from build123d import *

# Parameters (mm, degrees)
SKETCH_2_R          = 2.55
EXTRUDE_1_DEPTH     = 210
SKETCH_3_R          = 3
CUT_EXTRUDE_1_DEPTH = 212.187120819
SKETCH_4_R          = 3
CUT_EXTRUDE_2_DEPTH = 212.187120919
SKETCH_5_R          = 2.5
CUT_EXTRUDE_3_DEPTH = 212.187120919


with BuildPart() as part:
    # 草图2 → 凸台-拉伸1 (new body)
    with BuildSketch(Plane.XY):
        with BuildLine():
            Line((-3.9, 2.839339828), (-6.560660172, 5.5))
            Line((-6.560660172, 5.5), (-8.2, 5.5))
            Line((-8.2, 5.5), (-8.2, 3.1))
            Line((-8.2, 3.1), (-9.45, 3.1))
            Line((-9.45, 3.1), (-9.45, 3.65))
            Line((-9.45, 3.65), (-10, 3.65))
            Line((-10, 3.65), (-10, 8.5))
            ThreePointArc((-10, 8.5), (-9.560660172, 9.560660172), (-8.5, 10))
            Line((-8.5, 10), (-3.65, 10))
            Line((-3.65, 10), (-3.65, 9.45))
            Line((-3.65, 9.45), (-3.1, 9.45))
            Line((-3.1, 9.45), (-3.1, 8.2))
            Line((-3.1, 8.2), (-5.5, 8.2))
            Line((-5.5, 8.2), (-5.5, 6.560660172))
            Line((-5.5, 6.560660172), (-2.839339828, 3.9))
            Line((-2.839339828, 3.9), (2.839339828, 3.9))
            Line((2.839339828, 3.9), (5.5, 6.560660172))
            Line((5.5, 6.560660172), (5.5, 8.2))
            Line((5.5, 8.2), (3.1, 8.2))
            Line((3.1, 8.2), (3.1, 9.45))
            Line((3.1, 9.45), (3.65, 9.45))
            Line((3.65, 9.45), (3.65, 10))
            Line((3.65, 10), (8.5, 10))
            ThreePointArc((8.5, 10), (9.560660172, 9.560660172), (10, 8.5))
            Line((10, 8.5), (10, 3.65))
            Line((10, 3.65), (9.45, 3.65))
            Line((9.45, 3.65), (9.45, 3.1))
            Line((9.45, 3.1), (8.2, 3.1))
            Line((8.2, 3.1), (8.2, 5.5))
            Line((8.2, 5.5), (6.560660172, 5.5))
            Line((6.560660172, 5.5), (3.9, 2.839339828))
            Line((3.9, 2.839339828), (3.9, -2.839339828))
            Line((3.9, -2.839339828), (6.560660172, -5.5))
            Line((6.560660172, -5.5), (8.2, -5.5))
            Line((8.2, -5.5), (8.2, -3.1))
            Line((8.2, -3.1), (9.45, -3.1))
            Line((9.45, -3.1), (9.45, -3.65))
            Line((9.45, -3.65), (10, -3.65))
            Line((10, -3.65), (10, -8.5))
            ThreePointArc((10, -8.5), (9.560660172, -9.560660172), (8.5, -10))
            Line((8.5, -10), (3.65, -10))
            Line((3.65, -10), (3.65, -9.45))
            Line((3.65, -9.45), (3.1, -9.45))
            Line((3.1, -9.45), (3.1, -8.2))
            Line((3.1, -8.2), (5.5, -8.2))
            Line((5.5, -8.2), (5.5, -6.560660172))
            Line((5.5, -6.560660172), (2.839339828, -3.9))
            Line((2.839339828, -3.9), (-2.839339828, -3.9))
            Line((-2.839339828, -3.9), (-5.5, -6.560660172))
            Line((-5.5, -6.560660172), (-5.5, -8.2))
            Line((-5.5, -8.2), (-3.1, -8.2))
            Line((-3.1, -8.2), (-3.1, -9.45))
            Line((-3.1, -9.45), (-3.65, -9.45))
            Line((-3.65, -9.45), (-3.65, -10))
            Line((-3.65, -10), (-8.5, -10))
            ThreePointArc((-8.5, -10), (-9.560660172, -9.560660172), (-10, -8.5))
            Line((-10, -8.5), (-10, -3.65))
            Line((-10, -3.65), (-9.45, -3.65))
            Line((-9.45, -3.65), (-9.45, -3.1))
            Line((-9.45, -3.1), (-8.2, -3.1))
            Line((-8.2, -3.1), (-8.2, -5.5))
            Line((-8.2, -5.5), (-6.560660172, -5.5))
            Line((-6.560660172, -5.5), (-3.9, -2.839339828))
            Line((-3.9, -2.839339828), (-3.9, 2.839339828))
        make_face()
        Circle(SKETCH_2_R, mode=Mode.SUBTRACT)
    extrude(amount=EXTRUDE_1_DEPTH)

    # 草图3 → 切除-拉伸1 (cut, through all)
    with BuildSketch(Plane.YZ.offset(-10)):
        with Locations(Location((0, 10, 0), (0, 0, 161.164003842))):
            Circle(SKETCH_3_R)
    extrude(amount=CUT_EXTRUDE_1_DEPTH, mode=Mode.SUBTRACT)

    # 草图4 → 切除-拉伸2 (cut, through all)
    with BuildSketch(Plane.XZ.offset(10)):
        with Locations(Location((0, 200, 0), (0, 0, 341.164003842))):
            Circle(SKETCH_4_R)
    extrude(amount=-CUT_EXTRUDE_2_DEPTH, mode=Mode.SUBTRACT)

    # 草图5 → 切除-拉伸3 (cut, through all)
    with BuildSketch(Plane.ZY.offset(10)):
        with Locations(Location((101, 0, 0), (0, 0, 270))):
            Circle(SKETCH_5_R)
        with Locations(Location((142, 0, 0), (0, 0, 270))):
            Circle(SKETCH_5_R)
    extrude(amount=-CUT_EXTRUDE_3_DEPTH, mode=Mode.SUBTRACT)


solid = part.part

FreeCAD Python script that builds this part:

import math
import FreeCAD as App
import Part
import Sketcher

doc = App.newDocument("Part")
params = doc.addObject("Spreadsheet::Sheet", "Params")
for row, (alias, value) in enumerate([
    ("sketch1_diameter", "5.1 mm"),
    ("sketch1_radius", "1.5 mm"),
    ("sketch1_width", "2.4 mm"),
    ("sketch1_width2", "1.25 mm"),
    ("sketch1_width3", "0.55 mm"),
    ("pad1_length", "210 mm"),
    ("sketch2_diameter", "6 mm"),
    ("sketch3_diameter", "6 mm"),
    ("sketch4_diameter", "5 mm"),
], start=1):
    params.set(f"A{row}", alias)
    params.set(f"B{row}", "=" + value)
    params.setAlias(f"B{row}", alias)

body = doc.addObject("PartDesign::Body", "Body")

# Sketch on XY plane
sketch1 = body.newObject("Sketcher::SketchObject", "Sketch")
sketch1.AttachmentSupport = (doc.getObject("XY_Plane"), [""])
sketch1.MapMode = "FlatFace"
sketch1.addGeometry(Part.LineSegment(App.Vector(-6.56066, 5.5, 0), App.Vector(-3.9, 2.83934, 0)), False)
sketch1.addGeometry(Part.LineSegment(App.Vector(-3.9, 2.83934, 0), App.Vector(-3.9, -2.83934, 0)), False)
sketch1.addGeometry(Part.LineSegment(App.Vector(-3.9, -2.83934, 0), App.Vector(-6.56066, -5.5, 0)), False)
sketch1.addGeometry(Part.LineSegment(App.Vector(-6.56066, -5.5, 0), App.Vector(-8.2, -5.5, 0)), False)
sketch1.addGeometry(Part.LineSegment(App.Vector(-8.2, -5.5, 0), App.Vector(-8.2, -3.1, 0)), False)
sketch1.addGeometry(Part.LineSegment(App.Vector(-8.2, -3.1, 0), App.Vector(-9.45, -3.1, 0)), False)
sketch1.addGeometry(Part.LineSegment(App.Vector(-9.45, -3.1, 0), App.Vector(-9.45, -3.65, 0)), False)
sketch1.addGeometry(Part.LineSegment(App.Vector(-9.45, -3.65, 0), App.Vector(-10, -3.65, 0)), False)
sketch1.addGeometry(Part.LineSegment(App.Vector(-10, -3.65, 0), App.Vector(-10, -8.5, 0)), False)
sketch1.addGeometry(Part.ArcOfCircle(Part.Circle(App.Vector(-8.5, -8.5, 0), App.Vector(0, 0, 1), 1.5), math.radians(180), math.radians(270)), False)
sketch1.addGeometry(Part.LineSegment(App.Vector(-8.5, -10, 0), App.Vector(-3.65, -10, 0)), False)
sketch1.addGeometry(Part.LineSegment(App.Vector(-3.65, -10, 0), App.Vector(-3.65, -9.45, 0)), False)
sketch1.addGeometry(Part.LineSegment(App.Vector(-3.65, -9.45, 0), App.Vector(-3.1, -9.45, 0)), False)
sketch1.addGeometry(Part.LineSegment(App.Vector(-3.1, -9.45, 0), App.Vector(-3.1, -8.2, 0)), False)
sketch1.addGeometry(Part.LineSegment(App.Vector(-3.1, -8.2, 0), App.Vector(-5.5, -8.2, 0)), False)
sketch1.addGeometry(Part.LineSegment(App.Vector(-5.5, -8.2, 0), App.Vector(-5.5, -6.56066, 0)), False)
sketch1.addGeometry(Part.LineSegment(App.Vector(-5.5, -6.56066, 0), App.Vector(-2.83934, -3.9, 0)), False)
sketch1.addGeometry(Part.LineSegment(App.Vector(-2.83934, -3.9, 0), App.Vector(2.83934, -3.9, 0)), False)
sketch1.addGeometry(Part.LineSegment(App.Vector(2.83934, -3.9, 0), App.Vector(5.5, -6.56066, 0)), False)
sketch1.addGeometry(Part.LineSegment(App.Vector(5.5, -6.56066, 0), App.Vector(5.5, -8.2, 0)), False)
sketch1.addGeometry(Part.LineSegment(App.Vector(5.5, -8.2, 0), App.Vector(3.1, -8.2, 0)), False)
sketch1.addGeometry(Part.LineSegment(App.Vector(3.1, -8.2, 0), App.Vector(3.1, -9.45, 0)), False)
sketch1.addGeometry(Part.LineSegment(App.Vector(3.1, -9.45, 0), App.Vector(3.65, -9.45, 0)), False)
sketch1.addGeometry(Part.LineSegment(App.Vector(3.65, -9.45, 0), App.Vector(3.65, -10, 0)), False)
sketch1.addGeometry(Part.LineSegment(App.Vector(3.65, -10, 0), App.Vector(8.5, -10, 0)), False)
sketch1.addGeometry(Part.ArcOfCircle(Part.Circle(App.Vector(8.5, -8.5, 0), App.Vector(0, 0, 1), 1.5), math.radians(-90), math.radians(0)), False)
sketch1.addGeometry(Part.LineSegment(App.Vector(10, -8.5, 0), App.Vector(10, -3.65, 0)), False)
sketch1.addGeometry(Part.LineSegment(App.Vector(10, -3.65, 0), App.Vector(9.45, -3.65, 0)), False)
sketch1.addGeometry(Part.LineSegment(App.Vector(9.45, -3.65, 0), App.Vector(9.45, -3.1, 0)), False)
sketch1.addGeometry(Part.LineSegment(App.Vector(9.45, -3.1, 0), App.Vector(8.2, -3.1, 0)), False)
sketch1.addGeometry(Part.LineSegment(App.Vector(8.2, -3.1, 0), App.Vector(8.2, -5.5, 0)), False)
sketch1.addGeometry(Part.LineSegment(App.Vector(8.2, -5.5, 0), App.Vector(6.56066, -5.5, 0)), False)
sketch1.addGeometry(Part.LineSegment(App.Vector(6.56066, -5.5, 0), App.Vector(3.9, -2.83934, 0)), False)
sketch1.addGeometry(Part.LineSegment(App.Vector(3.9, -2.83934, 0), App.Vector(3.9, 2.83934, 0)), False)
sketch1.addGeometry(Part.LineSegment(App.Vector(3.9, 2.83934, 0), App.Vector(6.56066, 5.5, 0)), False)
sketch1.addGeometry(Part.LineSegment(App.Vector(6.56066, 5.5, 0), App.Vector(8.2, 5.5, 0)), False)
sketch1.addGeometry(Part.LineSegment(App.Vector(8.2, 5.5, 0), App.Vector(8.2, 3.1, 0)), False)
sketch1.addGeometry(Part.LineSegment(App.Vector(8.2, 3.1, 0), App.Vector(9.45, 3.1, 0)), False)
sketch1.addGeometry(Part.LineSegment(App.Vector(9.45, 3.1, 0), App.Vector(9.45, 3.65, 0)), False)
sketch1.addGeometry(Part.LineSegment(App.Vector(9.45, 3.65, 0), App.Vector(10, 3.65, 0)), False)
sketch1.addGeometry(Part.LineSegment(App.Vector(10, 3.65, 0), App.Vector(10, 8.5, 0)), False)
sketch1.addGeometry(Part.ArcOfCircle(Part.Circle(App.Vector(8.5, 8.5, 0), App.Vector(0, 0, 1), 1.5), math.radians(0), math.radians(90)), False)
sketch1.addGeometry(Part.LineSegment(App.Vector(8.5, 10, 0), App.Vector(3.65, 10, 0)), False)
sketch1.addGeometry(Part.LineSegment(App.Vector(3.65, 10, 0), App.Vector(3.65, 9.45, 0)), False)
sketch1.addGeometry(Part.LineSegment(App.Vector(3.65, 9.45, 0), App.Vector(3.1, 9.45, 0)), False)
sketch1.addGeometry(Part.LineSegment(App.Vector(3.1, 9.45, 0), App.Vector(3.1, 8.2, 0)), False)
sketch1.addGeometry(Part.LineSegment(App.Vector(3.1, 8.2, 0), App.Vector(5.5, 8.2, 0)), False)
sketch1.addGeometry(Part.LineSegment(App.Vector(5.5, 8.2, 0), App.Vector(5.5, 6.56066, 0)), False)
sketch1.addGeometry(Part.LineSegment(App.Vector(5.5, 6.56066, 0), App.Vector(2.83934, 3.9, 0)), False)
sketch1.addGeometry(Part.LineSegment(App.Vector(2.83934, 3.9, 0), App.Vector(-2.83934, 3.9, 0)), False)
sketch1.addGeometry(Part.LineSegment(App.Vector(-2.83934, 3.9, 0), App.Vector(-5.5, 6.56066, 0)), False)
sketch1.addGeometry(Part.LineSegment(App.Vector(-5.5, 6.56066, 0), App.Vector(-5.5, 8.2, 0)), False)
sketch1.addGeometry(Part.LineSegment(App.Vector(-5.5, 8.2, 0), App.Vector(-3.1, 8.2, 0)), False)
sketch1.addGeometry(Part.LineSegment(App.Vector(-3.1, 8.2, 0), App.Vector(-3.1, 9.45, 0)), False)
sketch1.addGeometry(Part.LineSegment(App.Vector(-3.1, 9.45, 0), App.Vector(-3.65, 9.45, 0)), False)
sketch1.addGeometry(Part.LineSegment(App.Vector(-3.65, 9.45, 0), App.Vector(-3.65, 10, 0)), False)
sketch1.addGeometry(Part.LineSegment(App.Vector(-3.65, 10, 0), App.Vector(-8.5, 10, 0)), False)
sketch1.addGeometry(Part.ArcOfCircle(Part.Circle(App.Vector(-8.5, 8.5, 0), App.Vector(0, 0, 1), 1.5), math.radians(90), math.radians(180)), False)
sketch1.addGeometry(Part.LineSegment(App.Vector(-10, 8.5, 0), App.Vector(-10, 3.65, 0)), False)
sketch1.addGeometry(Part.LineSegment(App.Vector(-10, 3.65, 0), App.Vector(-9.45, 3.65, 0)), False)
sketch1.addGeometry(Part.LineSegment(App.Vector(-9.45, 3.65, 0), App.Vector(-9.45, 3.1, 0)), False)
sketch1.addGeometry(Part.LineSegment(App.Vector(-9.45, 3.1, 0), App.Vector(-8.2, 3.1, 0)), False)
sketch1.addGeometry(Part.LineSegment(App.Vector(-8.2, 3.1, 0), App.Vector(-8.2, 5.5, 0)), False)
sketch1.addGeometry(Part.LineSegment(App.Vector(-8.2, 5.5, 0), App.Vector(-6.56066, 5.5, 0)), False)
sketch1.addGeometry(Part.Circle(App.Vector(0, 0, 0), App.Vector(0, 0, 1), 2.55), False)
sketch1.addConstraint(Sketcher.Constraint("Coincident", 0, 2, 1, 1))
sketch1.addConstraint(Sketcher.Constraint("Coincident", 1, 2, 2, 1))
sketch1.addConstraint(Sketcher.Constraint("Coincident", 2, 2, 3, 1))
sketch1.addConstraint(Sketcher.Constraint("Coincident", 3, 2, 4, 1))
sketch1.addConstraint(Sketcher.Constraint("Coincident", 4, 2, 5, 1))
sketch1.addConstraint(Sketcher.Constraint("Coincident", 5, 2, 6, 1))
sketch1.addConstraint(Sketcher.Constraint("Coincident", 6, 2, 7, 1))
sketch1.addConstraint(Sketcher.Constraint("Coincident", 7, 2, 8, 1))
sketch1.addConstraint(Sketcher.Constraint("Tangent", 8, 2, 9, 1))
sketch1.addConstraint(Sketcher.Constraint("Tangent", 9, 2, 10, 1))
sketch1.addConstraint(Sketcher.Constraint("Coincident", 10, 2, 11, 1))
sketch1.addConstraint(Sketcher.Constraint("Coincident", 11, 2, 12, 1))
sketch1.addConstraint(Sketcher.Constraint("Coincident", 12, 2, 13, 1))
sketch1.addConstraint(Sketcher.Constraint("Coincident", 13, 2, 14, 1))
sketch1.addConstraint(Sketcher.Constraint("Coincident", 14, 2, 15, 1))
sketch1.addConstraint(Sketcher.Constraint("Coincident", 15, 2, 16, 1))
sketch1.addConstraint(Sketcher.Constraint("Coincident", 16, 2, 17, 1))
sketch1.addConstraint(Sketcher.Constraint("Coincident", 17, 2, 18, 1))
sketch1.addConstraint(Sketcher.Constraint("Coincident", 18, 2, 19, 1))
sketch1.addConstraint(Sketcher.Constraint("Coincident", 19, 2, 20, 1))
sketch1.addConstraint(Sketcher.Constraint("Coincident", 20, 2, 21, 1))
sketch1.addConstraint(Sketcher.Constraint("Coincident", 21, 2, 22, 1))
sketch1.addConstraint(Sketcher.Constraint("Coincident", 22, 2, 23, 1))
sketch1.addConstraint(Sketcher.Constraint("Coincident", 23, 2, 24, 1))
sketch1.addConstraint(Sketcher.Constraint("Tangent", 24, 2, 25, 1))
sketch1.addConstraint(Sketcher.Constraint("Tangent", 25, 2, 26, 1))
sketch1.addConstraint(Sketcher.Constraint("Coincident", 26, 2, 27, 1))
sketch1.addConstraint(Sketcher.Constraint("Coincident", 27, 2, 28, 1))
sketch1.addConstraint(Sketcher.Constraint("Coincident", 28, 2, 29, 1))
sketch1.addConstraint(Sketcher.Constraint("Coincident", 29, 2, 30, 1))
sketch1.addConstraint(Sketcher.Constraint("Coincident", 30, 2, 31, 1))
sketch1.addConstraint(Sketcher.Constraint("Coincident", 31, 2, 32, 1))
sketch1.addConstraint(Sketcher.Constraint("Coincident", 32, 2, 33, 1))
sketch1.addConstraint(Sketcher.Constraint("Coincident", 33, 2, 34, 1))
sketch1.addConstraint(Sketcher.Constraint("Coincident", 34, 2, 35, 1))
sketch1.addConstraint(Sketcher.Constraint("Coincident", 35, 2, 36, 1))
sketch1.addConstraint(Sketcher.Constraint("Coincident", 36, 2, 37, 1))
sketch1.addConstraint(Sketcher.Constraint("Coincident", 37, 2, 38, 1))
sketch1.addConstraint(Sketcher.Constraint("Coincident", 38, 2, 39, 1))
sketch1.addConstraint(Sketcher.Constraint("Coincident", 39, 2, 40, 1))
sketch1.addConstraint(Sketcher.Constraint("Tangent", 40, 2, 41, 1))
sketch1.addConstraint(Sketcher.Constraint("Tangent", 41, 2, 42, 1))
sketch1.addConstraint(Sketcher.Constraint("Coincident", 42, 2, 43, 1))
sketch1.addConstraint(Sketcher.Constraint("Coincident", 43, 2, 44, 1))
sketch1.addConstraint(Sketcher.Constraint("Coincident", 44, 2, 45, 1))
sketch1.addConstraint(Sketcher.Constraint("Coincident", 45, 2, 46, 1))
sketch1.addConstraint(Sketcher.Constraint("Coincident", 46, 2, 47, 1))
sketch1.addConstraint(Sketcher.Constraint("Coincident", 47, 2, 48, 1))
sketch1.addConstraint(Sketcher.Constraint("Coincident", 48, 2, 49, 1))
sketch1.addConstraint(Sketcher.Constraint("Coincident", 49, 2, 50, 1))
sketch1.addConstraint(Sketcher.Constraint("Coincident", 50, 2, 51, 1))
sketch1.addConstraint(Sketcher.Constraint("Coincident", 51, 2, 52, 1))
sketch1.addConstraint(Sketcher.Constraint("Coincident", 52, 2, 53, 1))
sketch1.addConstraint(Sketcher.Constraint("Coincident", 53, 2, 54, 1))
sketch1.addConstraint(Sketcher.Constraint("Coincident", 54, 2, 55, 1))
sketch1.addConstraint(Sketcher.Constraint("Coincident", 55, 2, 56, 1))
sketch1.addConstraint(Sketcher.Constraint("Tangent", 56, 2, 57, 1))
sketch1.addConstraint(Sketcher.Constraint("Tangent", 57, 2, 58, 1))
sketch1.addConstraint(Sketcher.Constraint("Coincident", 58, 2, 59, 1))
sketch1.addConstraint(Sketcher.Constraint("Coincident", 59, 2, 60, 1))
sketch1.addConstraint(Sketcher.Constraint("Coincident", 60, 2, 61, 1))
sketch1.addConstraint(Sketcher.Constraint("Coincident", 61, 2, 62, 1))
sketch1.addConstraint(Sketcher.Constraint("Coincident", 62, 2, 63, 1))
sketch1.addConstraint(Sketcher.Constraint("Coincident", 63, 2, 0, 1))
sketch1.addConstraint(Sketcher.Constraint("Vertical", 1))
sketch1.addConstraint(Sketcher.Constraint("Horizontal", 3))
sketch1.addConstraint(Sketcher.Constraint("Vertical", 4))
sketch1.addConstraint(Sketcher.Constraint("Horizontal", 5))
sketch1.addConstraint(Sketcher.Constraint("Vertical", 6))
sketch1.addConstraint(Sketcher.Constraint("Horizontal", 7))
sketch1.addConstraint(Sketcher.Constraint("Vertical", 8))
sketch1.addConstraint(Sketcher.Constraint("Horizontal", 10))
sketch1.addConstraint(Sketcher.Constraint("Vertical", 11))
sketch1.addConstraint(Sketcher.Constraint("Horizontal", 12))
sketch1.addConstraint(Sketcher.Constraint("Vertical", 13))
sketch1.addConstraint(Sketcher.Constraint("Horizontal", 14))
sketch1.addConstraint(Sketcher.Constraint("Vertical", 15))
sketch1.addConstraint(Sketcher.Constraint("Horizontal", 17))
sketch1.addConstraint(Sketcher.Constraint("Vertical", 19))
sketch1.addConstraint(Sketcher.Constraint("Horizontal", 20))
sketch1.addConstraint(Sketcher.Constraint("Vertical", 21))
sketch1.addConstraint(Sketcher.Constraint("Horizontal", 22))
sketch1.addConstraint(Sketcher.Constraint("Vertical", 23))
sketch1.addConstraint(Sketcher.Constraint("Horizontal", 24))
sketch1.addConstraint(Sketcher.Constraint("Vertical", 26))
sketch1.addConstraint(Sketcher.Constraint("Horizontal", 27))
sketch1.addConstraint(Sketcher.Constraint("Vertical", 28))
sketch1.addConstraint(Sketcher.Constraint("Horizontal", 29))
sketch1.addConstraint(Sketcher.Constraint("Vertical", 30))
sketch1.addConstraint(Sketcher.Constraint("Horizontal", 31))
sketch1.addConstraint(Sketcher.Constraint("Vertical", 33))
sketch1.addConstraint(Sketcher.Constraint("Horizontal", 35))
sketch1.addConstraint(Sketcher.Constraint("Vertical", 36))
sketch1.addConstraint(Sketcher.Constraint("Horizontal", 37))
sketch1.addConstraint(Sketcher.Constraint("Vertical", 38))
sketch1.addConstraint(Sketcher.Constraint("Horizontal", 39))
sketch1.addConstraint(Sketcher.Constraint("Vertical", 40))
sketch1.addConstraint(Sketcher.Constraint("Horizontal", 42))
sketch1.addConstraint(Sketcher.Constraint("Vertical", 43))
sketch1.addConstraint(Sketcher.Constraint("Horizontal", 44))
sketch1.addConstraint(Sketcher.Constraint("Vertical", 45))
sketch1.addConstraint(Sketcher.Constraint("Horizontal", 46))
sketch1.addConstraint(Sketcher.Constraint("Vertical", 47))
sketch1.addConstraint(Sketcher.Constraint("Horizontal", 49))
sketch1.addConstraint(Sketcher.Constraint("Vertical", 51))
sketch1.addConstraint(Sketcher.Constraint("Horizontal", 52))
sketch1.addConstraint(Sketcher.Constraint("Vertical", 53))
sketch1.addConstraint(Sketcher.Constraint("Horizontal", 54))
sketch1.addConstraint(Sketcher.Constraint("Vertical", 55))
sketch1.addConstraint(Sketcher.Constraint("Horizontal", 56))
sketch1.addConstraint(Sketcher.Constraint("Vertical", 58))
sketch1.addConstraint(Sketcher.Constraint("Horizontal", 59))
sketch1.addConstraint(Sketcher.Constraint("Vertical", 60))
sketch1.addConstraint(Sketcher.Constraint("Horizontal", 61))
sketch1.addConstraint(Sketcher.Constraint("Vertical", 62))
sketch1.addConstraint(Sketcher.Constraint("Horizontal", 63))
sketch1.addConstraint(Sketcher.Constraint("Coincident", 64, 3, -1, 1))
sketch1.addConstraint(Sketcher.Constraint("Equal", 9, 25))
sketch1.addConstraint(Sketcher.Constraint("Equal", 25, 41))
sketch1.addConstraint(Sketcher.Constraint("Equal", 41, 57))
sketch1.addConstraint(Sketcher.Constraint("Symmetric", 9, 3, 41, 3, -1, 1))
sketch1.addConstraint(Sketcher.Constraint("Symmetric", 25, 3, 57, 3, -1, 1))
sketch1.addConstraint(Sketcher.Constraint("Symmetric", 0, 2, 32, 2, -1, 1))
sketch1.addConstraint(Sketcher.Constraint("Symmetric", 2, 2, 34, 2, -1, 1))
sketch1.addConstraint(Sketcher.Constraint("Symmetric", 4, 2, 36, 2, -1, 1))
sketch1.addConstraint(Sketcher.Constraint("Symmetric", 6, 2, 38, 2, -1, 1))
sketch1.addConstraint(Sketcher.Constraint("Symmetric", 11, 2, 43, 2, -1, 1))
sketch1.addConstraint(Sketcher.Constraint("Symmetric", 13, 2, 45, 2, -1, 1))
sketch1.addConstraint(Sketcher.Constraint("Symmetric", 15, 2, 47, 2, -1, 1))
sketch1.addConstraint(Sketcher.Constraint("Symmetric", 16, 2, 48, 2, -1, 1))
sketch1.addConstraint(Sketcher.Constraint("Symmetric", 18, 2, 50, 2, -1, 1))
sketch1.addConstraint(Sketcher.Constraint("Symmetric", 20, 2, 52, 2, -1, 1))
sketch1.addConstraint(Sketcher.Constraint("Symmetric", 22, 2, 54, 2, -1, 1))
sketch1.addConstraint(Sketcher.Constraint("Symmetric", 27, 2, 59, 2, -1, 1))
sketch1.addConstraint(Sketcher.Constraint("Symmetric", 29, 2, 61, 2, -1, 1))
sketch1.addConstraint(Sketcher.Constraint("Symmetric", 31, 2, 63, 2, -1, 1))
sketch1.addConstraint(Sketcher.Constraint("Symmetric", 9, 3, 25, 3, -2))
sketch1.addConstraint(Sketcher.Constraint("Symmetric", 15, 2, 18, 2, -2))
sketch1.addConstraint(Sketcher.Constraint("Symmetric", 13, 2, 20, 2, -2))
sketch1.addConstraint(Sketcher.Constraint("Symmetric", 11, 2, 22, 2, -2))
sketch1.addConstraint(Sketcher.Constraint("Symmetric", 6, 2, 27, 2, -2))
sketch1.addConstraint(Sketcher.Constraint("Symmetric", 4, 2, 29, 2, -2))
sketch1.addConstraint(Sketcher.Constraint("Symmetric", 2, 2, 31, 2, -2))
sketch1.addConstraint(Sketcher.Constraint("Perpendicular", 0, 2))
sketch1.addConstraint(Sketcher.Constraint("Parallel", 2, 16))
sketch1.addConstraint(Sketcher.Constraint("Perpendicular", 16, 18))
sketch1.addConstraint(Sketcher.Constraint("Perpendicular", 32, 34))
sketch1.addConstraint(Sketcher.Constraint("Perpendicular", 48, 50))
sketch1.addConstraint(Sketcher.Constraint("Horizontal", 1, 2, 32, 2))
sketch1.addConstraint(Sketcher.Constraint("Equal", 7, 12))
sketch1.addConstraint(Sketcher.Constraint("Equal", 49, 1))
sketch1.addConstraint(Sketcher.Constraint("Equal", 52, 4))
sketch1.addConstraint(Sketcher.Constraint("Equal", 59, 6))
sketch1.addConstraint(Sketcher.Constraint("Equal", 56, 8))
sketch1.addConstraint(Sketcher.Constraint("Equal", 6, 11))
sketch1.addConstraint(Sketcher.Constraint("Equal", 61, 13))
sketch1.addConstraint(Sketcher.Constraint("Equal", 63, 15))
sketch1.addConstraint(Sketcher.Constraint("Equal", 2, 16))
sketch1.addConstraint(Sketcher.Constraint("Diameter", 64, 5.1))
sketch1.addConstraint(Sketcher.Constraint("Radius", 9, 1.5))
sketch1.addConstraint(Sketcher.Constraint("DistanceX", 14, 2, 14, 1, 2.4))
sketch1.addConstraint(Sketcher.Constraint("DistanceX", 7, 2, -1, 1, 10.0))
sketch1.addConstraint(Sketcher.Constraint("DistanceX", 5, 2, 5, 1, 1.25))
sketch1.addConstraint(Sketcher.Constraint("DistanceX", 7, 2, 7, 1, 0.55))
sketch1.addConstraint(Sketcher.Constraint("DistanceX", 10, 1, 10, 2, 4.85))
sketch1.addConstraint(Sketcher.Constraint("DistanceX", 0, 2, -1, 1, 3.9))
sketch1.addConstraint(Sketcher.Constraint("DistanceX", 3, 2, 3, 1, 1.63934))
sketch1.setExpression("Constraints[158]", "Params.sketch1_diameter")
sketch1.setExpression("Constraints[159]", "Params.sketch1_radius")
sketch1.setExpression("Constraints[160]", "Params.sketch1_width")
sketch1.setExpression("Constraints[162]", "Params.sketch1_width2")
sketch1.setExpression("Constraints[163]", "Params.sketch1_width3")
pad1 = body.newObject("PartDesign::Pad", "Pad")
pad1.Profile = sketch1
pad1.setExpression("Length", "Params.pad1_length")

# Sketch on YZ plane
sketch2 = body.newObject("Sketcher::SketchObject", "Sketch001")
sketch2.AttachmentSupport = (doc.getObject("YZ_Plane"), [""])
sketch2.MapMode = "FlatFace"
sketch2.AttachmentOffset = App.Placement(App.Vector(0, 0, -10), App.Rotation())
sketch2.addGeometry(Part.Circle(App.Vector(0, 10, 0), App.Vector(0, 0, 1), 3), False)
sketch2.addConstraint(Sketcher.Constraint("PointOnObject", 0, 3, -2))
sketch2.addConstraint(Sketcher.Constraint("Diameter", 0, 6.0))
sketch2.addConstraint(Sketcher.Constraint("DistanceY", -1, 1, 0, 3, 10.0))
sketch2.setExpression("Constraints[1]", "Params.sketch2_diameter")
pocket1 = body.newObject("PartDesign::Pocket", "Pocket")
pocket1.Profile = sketch2
pocket1.Type = "ThroughAll"
pocket1.Reversed = True

# Sketch on XZ plane
sketch3 = body.newObject("Sketcher::SketchObject", "Sketch002")
sketch3.AttachmentSupport = (doc.getObject("XZ_Plane"), [""])
sketch3.MapMode = "FlatFace"
sketch3.AttachmentOffset = App.Placement(App.Vector(0, 0, 10), App.Rotation())
sketch3.addGeometry(Part.Circle(App.Vector(0, 200, 0), App.Vector(0, 0, 1), 3), False)
sketch3.addConstraint(Sketcher.Constraint("PointOnObject", 0, 3, -2))
sketch3.addConstraint(Sketcher.Constraint("Diameter", 0, 6.0))
sketch3.addConstraint(Sketcher.Constraint("DistanceY", -1, 1, 0, 3, 200.0))
sketch3.setExpression("Constraints[1]", "Params.sketch3_diameter")
pocket2 = body.newObject("PartDesign::Pocket", "Pocket001")
pocket2.Profile = sketch3
pocket2.Type = "ThroughAll"

# Sketch on YZ plane
sketch4 = body.newObject("Sketcher::SketchObject", "Sketch003")
sketch4.AttachmentSupport = (doc.getObject("YZ_Plane"), [""])
sketch4.MapMode = "FlatFace"
sketch4.AttachmentOffset = App.Placement(App.Vector(0, 0, -10), App.Rotation())
sketch4.addGeometry(Part.Circle(App.Vector(0, 101, 0), App.Vector(0, 0, 1), 2.5), False)
sketch4.addGeometry(Part.Circle(App.Vector(0, 142, 0), App.Vector(0, 0, 1), 2.5), False)
sketch4.addConstraint(Sketcher.Constraint("Equal", 0, 1))
sketch4.addConstraint(Sketcher.Constraint("PointOnObject", 0, 3, -2))
sketch4.addConstraint(Sketcher.Constraint("PointOnObject", 1, 3, -2))
sketch4.addConstraint(Sketcher.Constraint("Diameter", 0, 5.0))
sketch4.addConstraint(Sketcher.Constraint("DistanceY", -1, 1, 0, 3, 101.0))
sketch4.addConstraint(Sketcher.Constraint("DistanceY", -1, 1, 1, 3, 142.0))
sketch4.setExpression("Constraints[3]", "Params.sketch4_diameter")
pocket3 = body.newObject("PartDesign::Pocket", "Pocket002")
pocket3.Profile = sketch4
pocket3.Type = "ThroughAll"
pocket3.Reversed = True

doc.recompute()
